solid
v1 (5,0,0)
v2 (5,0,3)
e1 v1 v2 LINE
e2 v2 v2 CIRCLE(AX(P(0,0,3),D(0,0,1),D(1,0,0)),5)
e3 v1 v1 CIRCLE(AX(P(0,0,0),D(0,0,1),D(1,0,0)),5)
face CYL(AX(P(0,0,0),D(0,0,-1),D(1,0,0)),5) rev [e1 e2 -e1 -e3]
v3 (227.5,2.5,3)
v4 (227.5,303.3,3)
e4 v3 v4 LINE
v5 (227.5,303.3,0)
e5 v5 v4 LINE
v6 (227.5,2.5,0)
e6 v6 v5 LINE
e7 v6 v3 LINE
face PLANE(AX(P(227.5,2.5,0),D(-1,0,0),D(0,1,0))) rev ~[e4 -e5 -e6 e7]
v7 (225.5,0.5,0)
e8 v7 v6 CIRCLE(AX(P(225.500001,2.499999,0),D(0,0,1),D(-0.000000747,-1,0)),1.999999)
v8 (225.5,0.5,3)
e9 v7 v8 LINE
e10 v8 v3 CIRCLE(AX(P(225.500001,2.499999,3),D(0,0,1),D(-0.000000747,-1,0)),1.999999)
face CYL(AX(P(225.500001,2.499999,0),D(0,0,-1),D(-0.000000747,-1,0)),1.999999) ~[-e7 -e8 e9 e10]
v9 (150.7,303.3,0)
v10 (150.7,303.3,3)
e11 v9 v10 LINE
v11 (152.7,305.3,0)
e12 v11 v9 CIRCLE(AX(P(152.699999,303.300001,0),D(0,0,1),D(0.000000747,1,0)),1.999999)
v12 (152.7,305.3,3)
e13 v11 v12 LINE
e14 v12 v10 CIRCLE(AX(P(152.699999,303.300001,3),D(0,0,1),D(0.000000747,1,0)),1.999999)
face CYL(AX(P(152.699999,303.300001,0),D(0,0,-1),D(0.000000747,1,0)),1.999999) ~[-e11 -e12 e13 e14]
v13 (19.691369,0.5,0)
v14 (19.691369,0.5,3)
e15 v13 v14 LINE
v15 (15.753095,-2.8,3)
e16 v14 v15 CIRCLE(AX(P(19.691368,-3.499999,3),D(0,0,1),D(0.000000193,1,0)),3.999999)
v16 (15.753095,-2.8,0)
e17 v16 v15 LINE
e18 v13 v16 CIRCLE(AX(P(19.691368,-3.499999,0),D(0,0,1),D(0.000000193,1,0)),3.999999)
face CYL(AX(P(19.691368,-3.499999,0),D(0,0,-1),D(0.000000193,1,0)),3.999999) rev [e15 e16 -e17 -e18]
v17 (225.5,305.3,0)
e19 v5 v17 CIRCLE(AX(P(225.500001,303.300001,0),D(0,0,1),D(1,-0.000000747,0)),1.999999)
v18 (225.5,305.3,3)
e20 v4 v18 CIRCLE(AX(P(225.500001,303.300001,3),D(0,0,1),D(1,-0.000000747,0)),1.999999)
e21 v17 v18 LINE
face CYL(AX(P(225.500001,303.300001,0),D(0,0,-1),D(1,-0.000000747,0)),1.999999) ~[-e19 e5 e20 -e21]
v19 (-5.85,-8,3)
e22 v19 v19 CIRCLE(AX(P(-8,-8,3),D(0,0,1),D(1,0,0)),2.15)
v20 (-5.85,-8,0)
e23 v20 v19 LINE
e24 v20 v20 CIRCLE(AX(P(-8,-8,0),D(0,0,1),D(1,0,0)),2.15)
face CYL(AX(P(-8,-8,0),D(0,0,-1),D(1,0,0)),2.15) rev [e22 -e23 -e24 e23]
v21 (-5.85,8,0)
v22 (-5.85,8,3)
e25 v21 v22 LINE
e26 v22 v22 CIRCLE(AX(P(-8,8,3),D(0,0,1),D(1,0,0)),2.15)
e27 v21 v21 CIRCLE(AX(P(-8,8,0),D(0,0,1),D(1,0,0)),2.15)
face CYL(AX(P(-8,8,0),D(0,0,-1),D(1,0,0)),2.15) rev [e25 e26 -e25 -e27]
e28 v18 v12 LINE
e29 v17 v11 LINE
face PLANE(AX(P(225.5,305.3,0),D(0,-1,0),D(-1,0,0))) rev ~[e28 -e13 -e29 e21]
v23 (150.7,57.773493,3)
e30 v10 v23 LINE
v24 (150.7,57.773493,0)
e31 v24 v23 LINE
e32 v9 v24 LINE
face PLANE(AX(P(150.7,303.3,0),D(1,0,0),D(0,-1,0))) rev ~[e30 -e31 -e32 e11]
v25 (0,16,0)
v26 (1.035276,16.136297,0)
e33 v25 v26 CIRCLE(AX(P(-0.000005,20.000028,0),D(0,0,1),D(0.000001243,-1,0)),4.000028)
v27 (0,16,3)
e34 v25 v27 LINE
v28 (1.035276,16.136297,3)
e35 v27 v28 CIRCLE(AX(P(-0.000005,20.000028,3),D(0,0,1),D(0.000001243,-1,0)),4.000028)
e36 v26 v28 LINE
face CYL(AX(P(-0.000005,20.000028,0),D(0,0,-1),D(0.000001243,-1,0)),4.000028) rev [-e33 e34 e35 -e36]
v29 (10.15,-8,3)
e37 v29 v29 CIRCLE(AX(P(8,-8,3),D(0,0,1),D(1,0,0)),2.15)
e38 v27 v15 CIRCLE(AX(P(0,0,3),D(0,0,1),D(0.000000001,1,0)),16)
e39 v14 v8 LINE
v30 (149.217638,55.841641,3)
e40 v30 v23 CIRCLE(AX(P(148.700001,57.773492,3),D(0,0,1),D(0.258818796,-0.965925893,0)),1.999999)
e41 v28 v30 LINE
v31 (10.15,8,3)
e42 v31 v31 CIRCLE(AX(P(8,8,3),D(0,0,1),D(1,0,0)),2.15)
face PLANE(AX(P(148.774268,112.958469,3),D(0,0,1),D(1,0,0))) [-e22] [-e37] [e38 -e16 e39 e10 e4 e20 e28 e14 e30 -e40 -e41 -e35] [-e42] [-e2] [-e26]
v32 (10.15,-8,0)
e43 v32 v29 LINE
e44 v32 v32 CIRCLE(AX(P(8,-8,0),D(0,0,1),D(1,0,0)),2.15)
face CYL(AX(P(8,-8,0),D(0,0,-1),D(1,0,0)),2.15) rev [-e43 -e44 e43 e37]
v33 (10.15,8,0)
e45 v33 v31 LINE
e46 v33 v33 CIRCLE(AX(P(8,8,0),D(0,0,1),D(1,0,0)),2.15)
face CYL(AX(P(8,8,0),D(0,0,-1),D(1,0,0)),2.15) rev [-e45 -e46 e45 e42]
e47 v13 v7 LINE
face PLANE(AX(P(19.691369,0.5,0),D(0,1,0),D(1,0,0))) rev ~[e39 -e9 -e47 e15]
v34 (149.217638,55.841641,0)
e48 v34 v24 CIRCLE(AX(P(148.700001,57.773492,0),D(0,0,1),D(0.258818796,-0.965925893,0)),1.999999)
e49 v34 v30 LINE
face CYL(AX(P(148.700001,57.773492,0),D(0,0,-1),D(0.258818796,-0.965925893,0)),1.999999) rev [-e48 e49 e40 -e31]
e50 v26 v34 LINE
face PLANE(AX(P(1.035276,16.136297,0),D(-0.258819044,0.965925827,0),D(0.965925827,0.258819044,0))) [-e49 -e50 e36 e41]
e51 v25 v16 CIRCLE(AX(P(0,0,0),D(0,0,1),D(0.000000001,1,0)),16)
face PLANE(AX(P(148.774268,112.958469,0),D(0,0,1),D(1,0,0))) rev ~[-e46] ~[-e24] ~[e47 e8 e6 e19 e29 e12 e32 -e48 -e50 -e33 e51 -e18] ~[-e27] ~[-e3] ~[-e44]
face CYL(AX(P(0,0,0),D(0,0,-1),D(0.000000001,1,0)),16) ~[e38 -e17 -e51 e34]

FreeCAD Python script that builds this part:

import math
import FreeCAD as App
import Part
import Sketcher

V = App.Vector
Q = App.Units.Quantity

doc = App.newDocument("Part")
body = doc.addObject("PartDesign::Body", "Body")

sketch1 = doc.addObject("Sketcher::SketchObject", "Sketch")
body.addObject(sketch1)
sketch1.AttachmentSupport = (doc.XY_Plane, [""])
sketch1.MapMode = "FlatFace"
sketch1.addGeometry(Part.ArcOfCircle(Part.Circle(V(225.5, 2.5, 0), V(0, 0, 1), 2), math.radians(-90), math.radians(0)), False)
sketch1.addGeometry(Part.LineSegment(V(227.5, 2.5, 0), V(227.5, 303.3, 0)), False)
sketch1.addGeometry(Part.ArcOfCircle(Part.Circle(V(225.5, 303.3, 0), V(0, 0, 1), 2), math.radians(0), math.radians(90)), False)
sketch1.addGeometry(Part.LineSegment(V(225.5, 305.3, 0), V(152.7, 305.3, 0)), False)
sketch1.addGeometry(Part.ArcOfCircle(Part.Circle(V(152.7, 303.3, 0), V(0, 0, 1), 2), math.radians(90), math.radians(180)), False)
sketch1.addGeometry(Part.LineSegment(V(150.7, 303.3, 0), V(150.7, 57.8, 0)), False)
sketch1.addGeometry(Part.ArcOfCircle(Part.Circle(V(148.7, 57.8, 0), V(0, 0, 1), 2), math.radians(-75), math.radians(0)), False)
sketch1.addGeometry(Part.LineSegment(V(149.2, 55.8, 0), V(1, 16.1, 0)), False)
sketch1.addGeometry(Part.ArcOfCircle(Part.Circle(V(0, 20, 0), V(0, 0, 1), 4), math.radians(-90), math.radians(-75)), False)
sketch1.addGeometry(Part.ArcOfCircle(Part.Circle(V(0, 0, 0), V(0, 0, 1), 16), math.radians(90), math.radians(350)), False)
sketch1.addGeometry(Part.ArcOfCircle(Part.Circle(V(19.7, -3.5, 0), V(0, 0, 1), 4), math.radians(90), math.radians(170)), False)
sketch1.addGeometry(Part.LineSegment(V(19.7, 0.5, 0), V(225.5, 0.5, 0)), False)
sketch1.addGeometry(Part.Circle(V(-8, -8, 0), V(0, 0, 1), 2.1), False)
sketch1.addGeometry(Part.Circle(V(8, -8, 0), V(0, 0, 1), 2.1), False)
sketch1.addGeometry(Part.Circle(V(-8, 8, 0), V(0, 0, 1), 2.1), False)
sketch1.addGeometry(Part.Circle(V(0, 0, 0), V(0, 0, 1), 5), False)
sketch1.addGeometry(Part.Circle(V(8, 8, 0), V(0, 0, 1), 2.1), False)
sketch1.addConstraint(Sketcher.Constraint("Tangent", 0, 2, 1, 1))
sketch1.addConstraint(Sketcher.Constraint("Tangent", 1, 2, 2, 1))
sketch1.addConstraint(Sketcher.Constraint("Tangent", 2, 2, 3, 1))
sketch1.addConstraint(Sketcher.Constraint("Tangent", 3, 2, 4, 1))
sketch1.addConstraint(Sketcher.Constraint("Tangent", 4, 2, 5, 1))
sketch1.addConstraint(Sketcher.Constraint("Tangent", 5, 2, 6, 2))
sketch1.addConstraint(Sketcher.Constraint("Tangent", 6, 1, 7, 1))
sketch1.addConstraint(Sketcher.Constraint("Tangent", 7, 2, 8, 2))
sketch1.addConstraint(Sketcher.Constraint("Tangent", 8, 1, 9, 1))
sketch1.addConstraint(Sketcher.Constraint("Tangent", 9, 2, 10, 2))
sketch1.addConstraint(Sketcher.Constraint("Tangent", 10, 1, 11, 1))
sketch1.addConstraint(Sketcher.Constraint("Tangent", 11, 2, 0, 1))
sketch1.addConstraint(Sketcher.Constraint("Vertical", 1))
sketch1.addConstraint(Sketcher.Constraint("Horizontal", 3))
sketch1.addConstraint(Sketcher.Constraint("Vertical", 5))
sketch1.addConstraint(Sketcher.Constraint("Horizontal", 11))
sketch1.addConstraint(Sketcher.Constraint("Coincident", 9, 3, -1, 1))
sketch1.addConstraint(Sketcher.Constraint("Coincident", 15, 3, -1, 1))
sketch1.addConstraint(Sketcher.Constraint("Equal", 0, 2))
sketch1.addConstraint(Sketcher.Constraint("Equal", 2, 4))
sketch1.addConstraint(Sketcher.Constraint("Equal", 4, 6))
sketch1.addConstraint(Sketcher.Constraint("Equal", 12, 13))
sketch1.addConstraint(Sketcher.Constraint("Equal", 13, 14))
sketch1.addConstraint(Sketcher.Constraint("Equal", 14, 16))
sketch1.addConstraint(Sketcher.Constraint("Symmetric", 13, 3, 14, 3, -1, 1))
sketch1.addConstraint(Sketcher.Constraint("Symmetric", 12, 3, 16, 3, -1, 1))
sketch1.addConstraint(Sketcher.Constraint("Symmetric", 12, 3, 13, 3, -2))
sketch1.addConstraint(Sketcher.Constraint("PointOnObject", 8, 1, -2))
sketch1.addConstraint(Sketcher.Constraint("Diameter", 15, 10.0))
sketch1.addConstraint(Sketcher.Constraint("Radius", 0, 1.999999))
sketch1.addConstraint(Sketcher.Constraint("Radius", 9, 16.0))
sketch1.addConstraint(Sketcher.Constraint("Radius", 10, 3.999999))
sketch1.addConstraint(Sketcher.Constraint("Diameter", 12, 4.3))
sketch1.addConstraint(Sketcher.Constraint("Angle", 7, Q("-165 deg")))
sketch1.addConstraint(Sketcher.Constraint("DistanceX", 3, 2, 3, 1, 72.8))
sketch1.addConstraint(Sketcher.Constraint("DistanceY", 1, 1, 1, 2, 300.8))
sketch1.addConstraint(Sketcher.Constraint("DistanceX", 12, 3, -1, 1, 8.0))
sketch1.addConstraint(Sketcher.Constraint("DistanceY", 12, 3, -1, 1, 8.0))
sketch1.addConstraint(Sketcher.Constraint("DistanceX", -1, 1, 0, 3, 225.500001))
sketch1.addConstraint(Sketcher.Constraint("DistanceY", -1, 1, 0, 3, 2.499999))
sketch1.addConstraint(Sketcher.Constraint("Radius", 8, 4.000028))
pad1 = doc.addObject("PartDesign::Pad", "Pad")
body.addObject(pad1)
pad1.Profile = sketch1
pad1.Length = 3

doc.recompute()
